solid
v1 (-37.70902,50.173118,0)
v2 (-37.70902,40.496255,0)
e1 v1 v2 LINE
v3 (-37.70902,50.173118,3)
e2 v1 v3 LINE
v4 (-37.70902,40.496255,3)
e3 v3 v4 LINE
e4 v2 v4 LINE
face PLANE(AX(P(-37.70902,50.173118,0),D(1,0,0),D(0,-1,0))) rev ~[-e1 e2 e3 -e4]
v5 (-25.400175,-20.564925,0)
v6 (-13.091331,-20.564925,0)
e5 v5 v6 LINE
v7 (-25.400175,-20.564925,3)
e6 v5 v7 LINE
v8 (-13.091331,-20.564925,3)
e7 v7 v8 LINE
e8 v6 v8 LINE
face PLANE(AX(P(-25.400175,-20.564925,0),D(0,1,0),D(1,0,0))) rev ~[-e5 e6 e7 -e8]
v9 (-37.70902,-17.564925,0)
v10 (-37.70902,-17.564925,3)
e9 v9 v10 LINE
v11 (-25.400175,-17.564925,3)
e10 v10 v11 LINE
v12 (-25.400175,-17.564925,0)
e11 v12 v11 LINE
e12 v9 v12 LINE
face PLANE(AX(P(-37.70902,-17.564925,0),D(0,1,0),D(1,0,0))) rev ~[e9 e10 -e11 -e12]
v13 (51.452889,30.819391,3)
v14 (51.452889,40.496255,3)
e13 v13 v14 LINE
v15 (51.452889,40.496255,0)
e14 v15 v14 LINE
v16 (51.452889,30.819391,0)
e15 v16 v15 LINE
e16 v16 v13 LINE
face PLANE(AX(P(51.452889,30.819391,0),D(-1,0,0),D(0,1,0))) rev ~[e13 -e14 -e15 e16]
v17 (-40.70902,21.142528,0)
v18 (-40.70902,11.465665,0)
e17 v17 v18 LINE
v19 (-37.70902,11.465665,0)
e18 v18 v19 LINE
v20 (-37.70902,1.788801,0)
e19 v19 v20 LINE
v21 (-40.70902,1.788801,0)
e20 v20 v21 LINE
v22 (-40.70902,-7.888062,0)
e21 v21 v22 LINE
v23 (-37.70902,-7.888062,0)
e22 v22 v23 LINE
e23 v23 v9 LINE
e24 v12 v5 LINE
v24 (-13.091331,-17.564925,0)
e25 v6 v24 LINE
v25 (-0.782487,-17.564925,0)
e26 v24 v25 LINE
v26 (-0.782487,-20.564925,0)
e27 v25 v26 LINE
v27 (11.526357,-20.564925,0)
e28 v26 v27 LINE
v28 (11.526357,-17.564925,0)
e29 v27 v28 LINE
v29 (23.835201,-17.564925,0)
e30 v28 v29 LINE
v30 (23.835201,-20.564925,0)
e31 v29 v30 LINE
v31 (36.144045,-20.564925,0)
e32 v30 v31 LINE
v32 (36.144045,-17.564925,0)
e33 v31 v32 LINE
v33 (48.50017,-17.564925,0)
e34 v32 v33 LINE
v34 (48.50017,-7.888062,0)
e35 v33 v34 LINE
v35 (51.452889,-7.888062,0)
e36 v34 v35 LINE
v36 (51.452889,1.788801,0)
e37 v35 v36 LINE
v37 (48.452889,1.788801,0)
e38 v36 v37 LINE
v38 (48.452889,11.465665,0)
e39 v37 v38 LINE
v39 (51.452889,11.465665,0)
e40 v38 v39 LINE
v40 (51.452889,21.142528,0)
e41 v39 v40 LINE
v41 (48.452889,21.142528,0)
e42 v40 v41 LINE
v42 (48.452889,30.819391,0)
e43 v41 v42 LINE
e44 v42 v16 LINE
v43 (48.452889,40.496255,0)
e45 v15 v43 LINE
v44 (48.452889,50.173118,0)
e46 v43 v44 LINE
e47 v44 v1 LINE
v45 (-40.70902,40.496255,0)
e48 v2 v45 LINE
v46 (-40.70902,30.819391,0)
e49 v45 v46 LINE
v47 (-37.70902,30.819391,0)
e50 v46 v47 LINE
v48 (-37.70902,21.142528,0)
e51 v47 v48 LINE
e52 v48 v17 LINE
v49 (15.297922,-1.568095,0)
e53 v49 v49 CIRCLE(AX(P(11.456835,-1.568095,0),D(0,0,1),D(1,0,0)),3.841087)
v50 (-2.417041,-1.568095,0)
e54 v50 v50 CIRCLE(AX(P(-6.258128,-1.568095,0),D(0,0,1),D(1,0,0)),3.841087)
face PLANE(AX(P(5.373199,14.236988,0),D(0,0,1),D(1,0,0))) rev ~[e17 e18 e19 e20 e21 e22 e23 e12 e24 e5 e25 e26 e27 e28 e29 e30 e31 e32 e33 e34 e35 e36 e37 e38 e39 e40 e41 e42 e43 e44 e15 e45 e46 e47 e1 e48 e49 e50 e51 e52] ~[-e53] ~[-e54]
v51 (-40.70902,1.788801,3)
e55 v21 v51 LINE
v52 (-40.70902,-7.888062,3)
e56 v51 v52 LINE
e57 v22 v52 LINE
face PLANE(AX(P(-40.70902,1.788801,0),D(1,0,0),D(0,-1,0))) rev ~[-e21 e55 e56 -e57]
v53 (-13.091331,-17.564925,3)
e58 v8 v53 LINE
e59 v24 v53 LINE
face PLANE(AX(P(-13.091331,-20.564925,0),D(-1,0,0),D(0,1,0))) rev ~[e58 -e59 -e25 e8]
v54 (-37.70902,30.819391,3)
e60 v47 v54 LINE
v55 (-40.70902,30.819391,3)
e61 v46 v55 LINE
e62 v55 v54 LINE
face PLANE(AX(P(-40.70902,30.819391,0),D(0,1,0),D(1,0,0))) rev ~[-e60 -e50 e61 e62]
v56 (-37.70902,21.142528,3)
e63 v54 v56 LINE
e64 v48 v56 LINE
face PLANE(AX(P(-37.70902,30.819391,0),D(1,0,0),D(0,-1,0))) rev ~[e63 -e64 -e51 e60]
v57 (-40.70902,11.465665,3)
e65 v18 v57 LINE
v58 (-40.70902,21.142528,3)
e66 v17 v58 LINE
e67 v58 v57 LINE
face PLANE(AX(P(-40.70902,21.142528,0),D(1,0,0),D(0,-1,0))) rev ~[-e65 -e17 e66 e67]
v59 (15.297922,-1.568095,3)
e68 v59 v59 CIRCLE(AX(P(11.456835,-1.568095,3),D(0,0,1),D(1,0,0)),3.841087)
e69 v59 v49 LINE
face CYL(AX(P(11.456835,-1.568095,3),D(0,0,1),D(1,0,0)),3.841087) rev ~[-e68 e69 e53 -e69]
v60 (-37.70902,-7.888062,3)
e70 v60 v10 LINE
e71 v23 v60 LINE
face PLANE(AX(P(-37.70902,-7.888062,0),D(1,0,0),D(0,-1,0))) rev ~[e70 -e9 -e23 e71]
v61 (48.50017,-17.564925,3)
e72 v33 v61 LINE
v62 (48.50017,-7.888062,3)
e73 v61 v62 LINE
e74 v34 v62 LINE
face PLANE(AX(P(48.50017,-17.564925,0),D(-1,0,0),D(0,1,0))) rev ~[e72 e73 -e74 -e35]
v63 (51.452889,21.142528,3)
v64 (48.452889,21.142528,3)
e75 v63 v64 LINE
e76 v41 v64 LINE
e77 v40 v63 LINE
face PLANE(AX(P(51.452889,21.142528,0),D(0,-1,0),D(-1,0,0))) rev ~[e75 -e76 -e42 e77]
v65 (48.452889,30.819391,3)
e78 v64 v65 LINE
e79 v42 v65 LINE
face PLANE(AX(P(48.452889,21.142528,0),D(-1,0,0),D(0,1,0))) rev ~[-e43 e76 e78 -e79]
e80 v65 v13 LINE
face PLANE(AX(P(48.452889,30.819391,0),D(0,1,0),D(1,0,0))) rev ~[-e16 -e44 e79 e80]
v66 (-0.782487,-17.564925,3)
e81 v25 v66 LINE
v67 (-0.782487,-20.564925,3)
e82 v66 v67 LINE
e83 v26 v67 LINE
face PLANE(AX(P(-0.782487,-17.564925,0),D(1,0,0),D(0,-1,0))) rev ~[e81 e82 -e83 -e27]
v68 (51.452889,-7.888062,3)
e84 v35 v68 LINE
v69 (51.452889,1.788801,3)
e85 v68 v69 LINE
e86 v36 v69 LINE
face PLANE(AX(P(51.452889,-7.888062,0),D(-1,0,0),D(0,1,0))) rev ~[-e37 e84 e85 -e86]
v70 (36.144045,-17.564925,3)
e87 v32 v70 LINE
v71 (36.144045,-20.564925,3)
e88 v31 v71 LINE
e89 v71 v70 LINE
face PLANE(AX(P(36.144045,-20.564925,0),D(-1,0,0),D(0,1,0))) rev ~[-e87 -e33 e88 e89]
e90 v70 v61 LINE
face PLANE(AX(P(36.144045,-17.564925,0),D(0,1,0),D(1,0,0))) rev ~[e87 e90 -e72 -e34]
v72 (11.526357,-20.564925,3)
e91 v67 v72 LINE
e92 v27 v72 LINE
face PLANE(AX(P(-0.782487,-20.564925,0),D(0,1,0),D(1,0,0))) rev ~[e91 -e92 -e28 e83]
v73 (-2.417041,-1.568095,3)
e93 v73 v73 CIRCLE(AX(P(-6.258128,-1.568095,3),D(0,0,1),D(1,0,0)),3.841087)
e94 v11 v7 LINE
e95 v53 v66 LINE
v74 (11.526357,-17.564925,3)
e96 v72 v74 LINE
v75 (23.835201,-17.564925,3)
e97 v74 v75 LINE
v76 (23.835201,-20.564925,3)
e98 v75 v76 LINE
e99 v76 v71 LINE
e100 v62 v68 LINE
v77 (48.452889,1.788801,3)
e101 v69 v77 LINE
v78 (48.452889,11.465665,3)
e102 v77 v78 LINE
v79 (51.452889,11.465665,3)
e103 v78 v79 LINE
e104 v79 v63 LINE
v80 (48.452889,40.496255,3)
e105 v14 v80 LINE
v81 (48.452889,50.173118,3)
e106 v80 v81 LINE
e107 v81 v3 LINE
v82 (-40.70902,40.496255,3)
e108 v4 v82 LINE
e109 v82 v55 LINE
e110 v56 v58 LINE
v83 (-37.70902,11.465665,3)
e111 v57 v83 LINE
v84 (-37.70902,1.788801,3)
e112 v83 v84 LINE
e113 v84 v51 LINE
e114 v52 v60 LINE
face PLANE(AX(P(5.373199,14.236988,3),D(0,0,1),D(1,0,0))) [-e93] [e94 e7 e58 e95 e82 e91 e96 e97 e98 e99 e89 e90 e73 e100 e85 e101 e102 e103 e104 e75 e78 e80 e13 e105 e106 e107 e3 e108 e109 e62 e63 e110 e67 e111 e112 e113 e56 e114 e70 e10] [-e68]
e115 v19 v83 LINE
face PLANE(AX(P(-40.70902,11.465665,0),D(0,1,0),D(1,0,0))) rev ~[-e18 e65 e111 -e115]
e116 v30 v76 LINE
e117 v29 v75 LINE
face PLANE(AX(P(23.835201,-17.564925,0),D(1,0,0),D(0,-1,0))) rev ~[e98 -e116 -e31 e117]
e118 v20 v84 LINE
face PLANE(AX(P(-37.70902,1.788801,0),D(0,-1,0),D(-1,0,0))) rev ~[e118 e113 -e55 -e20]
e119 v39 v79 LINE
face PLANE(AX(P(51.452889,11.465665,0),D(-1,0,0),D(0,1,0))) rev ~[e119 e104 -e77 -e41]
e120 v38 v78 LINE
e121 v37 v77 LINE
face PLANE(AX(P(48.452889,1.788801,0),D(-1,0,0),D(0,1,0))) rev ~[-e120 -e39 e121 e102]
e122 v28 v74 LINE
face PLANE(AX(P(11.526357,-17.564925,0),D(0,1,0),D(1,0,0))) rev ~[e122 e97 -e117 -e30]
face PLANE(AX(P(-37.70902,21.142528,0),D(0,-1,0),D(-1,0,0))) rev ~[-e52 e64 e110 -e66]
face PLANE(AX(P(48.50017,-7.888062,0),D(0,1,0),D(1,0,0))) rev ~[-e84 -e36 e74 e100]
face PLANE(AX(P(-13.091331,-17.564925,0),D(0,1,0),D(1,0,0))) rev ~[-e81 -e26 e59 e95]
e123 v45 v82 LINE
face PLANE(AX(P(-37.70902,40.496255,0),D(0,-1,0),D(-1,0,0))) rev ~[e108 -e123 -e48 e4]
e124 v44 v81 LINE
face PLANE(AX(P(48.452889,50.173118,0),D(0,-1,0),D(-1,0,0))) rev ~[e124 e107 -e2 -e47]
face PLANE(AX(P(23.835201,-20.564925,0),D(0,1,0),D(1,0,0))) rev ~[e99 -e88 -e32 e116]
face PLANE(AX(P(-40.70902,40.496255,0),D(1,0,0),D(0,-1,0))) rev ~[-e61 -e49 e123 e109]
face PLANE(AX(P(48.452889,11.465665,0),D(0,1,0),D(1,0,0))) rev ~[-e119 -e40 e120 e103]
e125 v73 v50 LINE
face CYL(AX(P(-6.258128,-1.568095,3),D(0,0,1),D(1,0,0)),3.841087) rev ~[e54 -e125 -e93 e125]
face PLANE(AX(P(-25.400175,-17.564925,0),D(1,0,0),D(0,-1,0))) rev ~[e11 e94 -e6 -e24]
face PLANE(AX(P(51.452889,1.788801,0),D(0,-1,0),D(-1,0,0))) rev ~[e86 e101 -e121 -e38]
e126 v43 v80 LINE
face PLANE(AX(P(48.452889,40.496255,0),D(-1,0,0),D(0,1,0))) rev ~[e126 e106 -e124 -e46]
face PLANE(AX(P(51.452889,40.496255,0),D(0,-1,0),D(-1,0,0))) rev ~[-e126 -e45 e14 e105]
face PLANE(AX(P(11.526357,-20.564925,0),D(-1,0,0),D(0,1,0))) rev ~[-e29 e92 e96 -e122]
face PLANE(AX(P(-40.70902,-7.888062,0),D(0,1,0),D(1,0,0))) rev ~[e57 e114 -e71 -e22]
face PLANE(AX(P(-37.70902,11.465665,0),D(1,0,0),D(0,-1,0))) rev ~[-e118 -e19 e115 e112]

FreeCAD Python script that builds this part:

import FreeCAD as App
import Part
import Sketcher
from FreeCAD import Vector
Q = App.Units.Quantity


def add_polygon(sketch, points):
    """Adds a closed chain of lines whose ends are joined by coincident constraints."""
    first, n = sketch.GeometryCount, len(points)
    for a, b in zip(points, points[1:] + points[:1]):
        sketch.addGeometry(Part.LineSegment(App.Vector(*a, 0), App.Vector(*b, 0)), False)
    for i in range(n):
        sketch.addConstraint(Sketcher.Constraint("Coincident", first + i, 2, first + (i + 1) % n, 1))

doc = App.newDocument("Part")
params = doc.addObject("Spreadsheet::Sheet", "Params")
for row, (alias, value) in enumerate([
    ("sketch1_width", "3 mm"),
    ("pad1_length", "3 mm"),
    ("pocket1_length", "3 mm"),
], start=1):
    params.set(f"A{row}", alias)
    params.set(f"B{row}", "=" + value)
    params.setAlias(f"B{row}", alias)

body = doc.addObject("PartDesign::Body", "Body")

sketch1 = body.newObject("Sketcher::SketchObject", "Sketch")
sketch1.AttachmentSupport = (doc.getObject("XY_Plane"), [""])
sketch1.MapMode = "FlatFace"
add_polygon(sketch1, [(-37.70902, -17.564925), (-25.400175, -17.564925), (-25.400175, -20.564925), (-13.091331, -20.564925), (-13.091331, -17.564925), (-0.782487, -17.564925), (-0.782487, -20.564925), (11.526357, -20.564925), (11.526357, -17.564925), (23.835201, -17.564925), (23.835201, -20.564925), (36.144045, -20.564925), (36.144045, -17.564925), (48.50017, -17.564925), (48.50017, -7.888062), (51.452889, -7.888062), (51.452889, 1.788801), (48.452889, 1.788801), (48.452889, 11.465665), (51.452889, 11.465665), (51.452889, 21.142528), (48.452889, 21.142528), (48.452889, 30.819391), (51.452889, 30.819391), (51.452889, 40.496255), (48.452889, 40.496255), (48.452889, 50.173118), (-37.70902, 50.173118), (-37.70902, 40.496255), (-40.70902, 40.496255), (-40.70902, 30.819391), (-37.70902, 30.819391), (-37.70902, 21.142528), (-40.70902, 21.142528), (-40.70902, 11.465665), (-37.70902, 11.465665), (-37.70902, 1.788801), (-40.70902, 1.788801), (-40.70902, -7.888062), (-37.70902, -7.888062)])
sketch1.addConstraint([
    Sketcher.Constraint("Horizontal", 0),
    Sketcher.Constraint("Vertical", 1),
    Sketcher.Constraint("Horizontal", 2),
    Sketcher.Constraint("Vertical", 3),
    Sketcher.Constraint("Horizontal", 4),
    Sketcher.Constraint("Vertical", 5),
    Sketcher.Constraint("Horizontal", 6),
    Sketcher.Constraint("Vertical", 7),
    Sketcher.Constraint("Horizontal", 8),
    Sketcher.Constraint("Vertical", 9),
    Sketcher.Constraint("Horizontal", 10),
    Sketcher.Constraint("Vertical", 11),
    Sketcher.Constraint("Horizontal", 12),
    Sketcher.Constraint("Vertical", 13),
    Sketcher.Constraint("Horizontal", 14),
    Sketcher.Constraint("Vertical", 15),
    Sketcher.Constraint("Horizontal", 16),
    Sketcher.Constraint("Vertical", 17),
    Sketcher.Constraint("Horizontal", 18),
    Sketcher.Constraint("Vertical", 19),
    Sketcher.Constraint("Horizontal", 20),
    Sketcher.Constraint("Vertical", 21),
    Sketcher.Constraint("Horizontal", 22),
    Sketcher.Constraint("Vertical", 23),
    Sketcher.Constraint("Horizontal", 24),
    Sketcher.Constraint("Vertical", 25),
    Sketcher.Constraint("Horizontal", 26),
    Sketcher.Constraint("Vertical", 27),
    Sketcher.Constraint("Horizontal", 28),
    Sketcher.Constraint("Vertical", 29),
    Sketcher.Constraint("Horizontal", 30),
    Sketcher.Constraint("Vertical", 31),
    Sketcher.Constraint("Horizontal", 32),
    Sketcher.Constraint("Vertical", 33),
    Sketcher.Constraint("Horizontal", 34),
    Sketcher.Constraint("Vertical", 35),
    Sketcher.Constraint("Horizontal", 36),
    Sketcher.Constraint("Vertical", 37),
    Sketcher.Constraint("Horizontal", 38),
    Sketcher.Constraint("Vertical", 39),
    Sketcher.Constraint("Horizontal", 0, 2, 3, 2),
    Sketcher.Constraint("Horizontal", 2, 2, 5, 2),
    Sketcher.Constraint("Horizontal", 4, 2, 7, 2),
    Sketcher.Constraint("Horizontal", 6, 2, 9, 2),
    Sketcher.Constraint("Horizontal", 8, 2, 11, 2),
    Sketcher.Constraint("Horizontal", 24, 2, 27, 2),
    Sketcher.Constraint("Horizontal", 22, 2, 29, 2),
    Sketcher.Constraint("Horizontal", 20, 2, 31, 2),
    Sketcher.Constraint("Horizontal", 18, 2, 33, 2),
    Sketcher.Constraint("Horizontal", 16, 2, 35, 2),
    Sketcher.Constraint("Horizontal", 14, 2, 37, 2),
    Sketcher.Constraint("Vertical", 15, 2, 18, 2),
    Sketcher.Constraint("Vertical", 17, 2, 20, 2),
    Sketcher.Constraint("Vertical", 19, 2, 22, 2),
    Sketcher.Constraint("Vertical", 21, 2, 24, 2),
    Sketcher.Constraint("Vertical", 27, 2, 30, 2),
    Sketcher.Constraint("Vertical", 29, 2, 32, 2),
    Sketcher.Constraint("Vertical", 31, 2, 34, 2),
    Sketcher.Constraint("Vertical", 33, 2, 36, 2),
    Sketcher.Constraint("Vertical", 35, 2, 38, 2),
    Sketcher.Constraint("Equal", 0, 2),
    Sketcher.Constraint("Equal", 2, 4),
    Sketcher.Constraint("Equal", 4, 6),
    Sketcher.Constraint("Equal", 6, 8),
    Sketcher.Constraint("Equal", 8, 10),
    Sketcher.Constraint("Equal", 24, 28),
    Sketcher.Constraint("Equal", 38, 1),
    Sketcher.Constraint("Equal", 13, 15),
    Sketcher.Constraint("Equal", 15, 17),
    Sketcher.Constraint("Equal", 17, 19),
    Sketcher.Constraint("Equal", 19, 21),
    Sketcher.Constraint("Equal", 21, 23),
    Sketcher.Constraint("Equal", 23, 25),
    Sketcher.Constraint("DistanceX", 16, 2, 16, 1, Q("3 mm")),
    Sketcher.Constraint("DistanceX", 14, 1, 14, 2, Q("2.952719 mm")),
    Sketcher.Constraint("DistanceX", 26, 2, 26, 1, Q("86.161909 mm")),
    Sketcher.Constraint("DistanceX", -1, 1, 8, 2, Q("23.835201 mm")),
    Sketcher.Constraint("DistanceY", -1, 1, 15, 2, Q("1.788801 mm")),
    Sketcher.Constraint("DistanceX", 0, 1, 0, 2, Q("12.308844 mm")),
    Sketcher.Constraint("DistanceY", 13, 1, 13, 2, Q("9.676863 mm")),
])
sketch1.setExpression("Constraints[113]", "Params.sketch1_width")
pad1 = body.newObject("PartDesign::Pad", "Pad")
pad1.Profile = sketch1
pad1.setExpression("Length", "Params.pad1_length")

sketch2 = body.newObject("Sketcher::SketchObject", "Sketch001")
sketch2.AttachmentSupport = (doc.getObject("XY_Plane"), [""])
sketch2.MapMode = "FlatFace"
sketch2.AttachmentOffset = App.Placement(Vector(0, 0, 3), App.Rotation())
sketch2.addGeometry([
    Part.Circle(Vector(-6.258128, -1.568095, 0), Vector(0, 0, 1), 3.841087),
    Part.Circle(Vector(11.456835, -1.568095, 0), Vector(0, 0, 1), 3.841087),
], False)
sketch2.addConstraint([
    Sketcher.Constraint("Equal", 0, 1),
    Sketcher.Constraint("Horizontal", 0, 3, 1, 3),
    Sketcher.Constraint("Diameter", 0, Q("7.682174 mm")),
    Sketcher.Constraint("DistanceX", 0, 3, -1, 1, Q("6.258128 mm")),
    Sketcher.Constraint("DistanceY", 0, 3, -1, 1, Q("1.568095 mm")),
    Sketcher.Constraint("DistanceX", -1, 1, 1, 3, Q("11.456835 mm")),
])
pocket1 = body.newObject("PartDesign::Pocket", "Pocket")
pocket1.Profile = sketch2
pocket1.setExpression("Length", "Params.pocket1_length")

doc.recompute()
